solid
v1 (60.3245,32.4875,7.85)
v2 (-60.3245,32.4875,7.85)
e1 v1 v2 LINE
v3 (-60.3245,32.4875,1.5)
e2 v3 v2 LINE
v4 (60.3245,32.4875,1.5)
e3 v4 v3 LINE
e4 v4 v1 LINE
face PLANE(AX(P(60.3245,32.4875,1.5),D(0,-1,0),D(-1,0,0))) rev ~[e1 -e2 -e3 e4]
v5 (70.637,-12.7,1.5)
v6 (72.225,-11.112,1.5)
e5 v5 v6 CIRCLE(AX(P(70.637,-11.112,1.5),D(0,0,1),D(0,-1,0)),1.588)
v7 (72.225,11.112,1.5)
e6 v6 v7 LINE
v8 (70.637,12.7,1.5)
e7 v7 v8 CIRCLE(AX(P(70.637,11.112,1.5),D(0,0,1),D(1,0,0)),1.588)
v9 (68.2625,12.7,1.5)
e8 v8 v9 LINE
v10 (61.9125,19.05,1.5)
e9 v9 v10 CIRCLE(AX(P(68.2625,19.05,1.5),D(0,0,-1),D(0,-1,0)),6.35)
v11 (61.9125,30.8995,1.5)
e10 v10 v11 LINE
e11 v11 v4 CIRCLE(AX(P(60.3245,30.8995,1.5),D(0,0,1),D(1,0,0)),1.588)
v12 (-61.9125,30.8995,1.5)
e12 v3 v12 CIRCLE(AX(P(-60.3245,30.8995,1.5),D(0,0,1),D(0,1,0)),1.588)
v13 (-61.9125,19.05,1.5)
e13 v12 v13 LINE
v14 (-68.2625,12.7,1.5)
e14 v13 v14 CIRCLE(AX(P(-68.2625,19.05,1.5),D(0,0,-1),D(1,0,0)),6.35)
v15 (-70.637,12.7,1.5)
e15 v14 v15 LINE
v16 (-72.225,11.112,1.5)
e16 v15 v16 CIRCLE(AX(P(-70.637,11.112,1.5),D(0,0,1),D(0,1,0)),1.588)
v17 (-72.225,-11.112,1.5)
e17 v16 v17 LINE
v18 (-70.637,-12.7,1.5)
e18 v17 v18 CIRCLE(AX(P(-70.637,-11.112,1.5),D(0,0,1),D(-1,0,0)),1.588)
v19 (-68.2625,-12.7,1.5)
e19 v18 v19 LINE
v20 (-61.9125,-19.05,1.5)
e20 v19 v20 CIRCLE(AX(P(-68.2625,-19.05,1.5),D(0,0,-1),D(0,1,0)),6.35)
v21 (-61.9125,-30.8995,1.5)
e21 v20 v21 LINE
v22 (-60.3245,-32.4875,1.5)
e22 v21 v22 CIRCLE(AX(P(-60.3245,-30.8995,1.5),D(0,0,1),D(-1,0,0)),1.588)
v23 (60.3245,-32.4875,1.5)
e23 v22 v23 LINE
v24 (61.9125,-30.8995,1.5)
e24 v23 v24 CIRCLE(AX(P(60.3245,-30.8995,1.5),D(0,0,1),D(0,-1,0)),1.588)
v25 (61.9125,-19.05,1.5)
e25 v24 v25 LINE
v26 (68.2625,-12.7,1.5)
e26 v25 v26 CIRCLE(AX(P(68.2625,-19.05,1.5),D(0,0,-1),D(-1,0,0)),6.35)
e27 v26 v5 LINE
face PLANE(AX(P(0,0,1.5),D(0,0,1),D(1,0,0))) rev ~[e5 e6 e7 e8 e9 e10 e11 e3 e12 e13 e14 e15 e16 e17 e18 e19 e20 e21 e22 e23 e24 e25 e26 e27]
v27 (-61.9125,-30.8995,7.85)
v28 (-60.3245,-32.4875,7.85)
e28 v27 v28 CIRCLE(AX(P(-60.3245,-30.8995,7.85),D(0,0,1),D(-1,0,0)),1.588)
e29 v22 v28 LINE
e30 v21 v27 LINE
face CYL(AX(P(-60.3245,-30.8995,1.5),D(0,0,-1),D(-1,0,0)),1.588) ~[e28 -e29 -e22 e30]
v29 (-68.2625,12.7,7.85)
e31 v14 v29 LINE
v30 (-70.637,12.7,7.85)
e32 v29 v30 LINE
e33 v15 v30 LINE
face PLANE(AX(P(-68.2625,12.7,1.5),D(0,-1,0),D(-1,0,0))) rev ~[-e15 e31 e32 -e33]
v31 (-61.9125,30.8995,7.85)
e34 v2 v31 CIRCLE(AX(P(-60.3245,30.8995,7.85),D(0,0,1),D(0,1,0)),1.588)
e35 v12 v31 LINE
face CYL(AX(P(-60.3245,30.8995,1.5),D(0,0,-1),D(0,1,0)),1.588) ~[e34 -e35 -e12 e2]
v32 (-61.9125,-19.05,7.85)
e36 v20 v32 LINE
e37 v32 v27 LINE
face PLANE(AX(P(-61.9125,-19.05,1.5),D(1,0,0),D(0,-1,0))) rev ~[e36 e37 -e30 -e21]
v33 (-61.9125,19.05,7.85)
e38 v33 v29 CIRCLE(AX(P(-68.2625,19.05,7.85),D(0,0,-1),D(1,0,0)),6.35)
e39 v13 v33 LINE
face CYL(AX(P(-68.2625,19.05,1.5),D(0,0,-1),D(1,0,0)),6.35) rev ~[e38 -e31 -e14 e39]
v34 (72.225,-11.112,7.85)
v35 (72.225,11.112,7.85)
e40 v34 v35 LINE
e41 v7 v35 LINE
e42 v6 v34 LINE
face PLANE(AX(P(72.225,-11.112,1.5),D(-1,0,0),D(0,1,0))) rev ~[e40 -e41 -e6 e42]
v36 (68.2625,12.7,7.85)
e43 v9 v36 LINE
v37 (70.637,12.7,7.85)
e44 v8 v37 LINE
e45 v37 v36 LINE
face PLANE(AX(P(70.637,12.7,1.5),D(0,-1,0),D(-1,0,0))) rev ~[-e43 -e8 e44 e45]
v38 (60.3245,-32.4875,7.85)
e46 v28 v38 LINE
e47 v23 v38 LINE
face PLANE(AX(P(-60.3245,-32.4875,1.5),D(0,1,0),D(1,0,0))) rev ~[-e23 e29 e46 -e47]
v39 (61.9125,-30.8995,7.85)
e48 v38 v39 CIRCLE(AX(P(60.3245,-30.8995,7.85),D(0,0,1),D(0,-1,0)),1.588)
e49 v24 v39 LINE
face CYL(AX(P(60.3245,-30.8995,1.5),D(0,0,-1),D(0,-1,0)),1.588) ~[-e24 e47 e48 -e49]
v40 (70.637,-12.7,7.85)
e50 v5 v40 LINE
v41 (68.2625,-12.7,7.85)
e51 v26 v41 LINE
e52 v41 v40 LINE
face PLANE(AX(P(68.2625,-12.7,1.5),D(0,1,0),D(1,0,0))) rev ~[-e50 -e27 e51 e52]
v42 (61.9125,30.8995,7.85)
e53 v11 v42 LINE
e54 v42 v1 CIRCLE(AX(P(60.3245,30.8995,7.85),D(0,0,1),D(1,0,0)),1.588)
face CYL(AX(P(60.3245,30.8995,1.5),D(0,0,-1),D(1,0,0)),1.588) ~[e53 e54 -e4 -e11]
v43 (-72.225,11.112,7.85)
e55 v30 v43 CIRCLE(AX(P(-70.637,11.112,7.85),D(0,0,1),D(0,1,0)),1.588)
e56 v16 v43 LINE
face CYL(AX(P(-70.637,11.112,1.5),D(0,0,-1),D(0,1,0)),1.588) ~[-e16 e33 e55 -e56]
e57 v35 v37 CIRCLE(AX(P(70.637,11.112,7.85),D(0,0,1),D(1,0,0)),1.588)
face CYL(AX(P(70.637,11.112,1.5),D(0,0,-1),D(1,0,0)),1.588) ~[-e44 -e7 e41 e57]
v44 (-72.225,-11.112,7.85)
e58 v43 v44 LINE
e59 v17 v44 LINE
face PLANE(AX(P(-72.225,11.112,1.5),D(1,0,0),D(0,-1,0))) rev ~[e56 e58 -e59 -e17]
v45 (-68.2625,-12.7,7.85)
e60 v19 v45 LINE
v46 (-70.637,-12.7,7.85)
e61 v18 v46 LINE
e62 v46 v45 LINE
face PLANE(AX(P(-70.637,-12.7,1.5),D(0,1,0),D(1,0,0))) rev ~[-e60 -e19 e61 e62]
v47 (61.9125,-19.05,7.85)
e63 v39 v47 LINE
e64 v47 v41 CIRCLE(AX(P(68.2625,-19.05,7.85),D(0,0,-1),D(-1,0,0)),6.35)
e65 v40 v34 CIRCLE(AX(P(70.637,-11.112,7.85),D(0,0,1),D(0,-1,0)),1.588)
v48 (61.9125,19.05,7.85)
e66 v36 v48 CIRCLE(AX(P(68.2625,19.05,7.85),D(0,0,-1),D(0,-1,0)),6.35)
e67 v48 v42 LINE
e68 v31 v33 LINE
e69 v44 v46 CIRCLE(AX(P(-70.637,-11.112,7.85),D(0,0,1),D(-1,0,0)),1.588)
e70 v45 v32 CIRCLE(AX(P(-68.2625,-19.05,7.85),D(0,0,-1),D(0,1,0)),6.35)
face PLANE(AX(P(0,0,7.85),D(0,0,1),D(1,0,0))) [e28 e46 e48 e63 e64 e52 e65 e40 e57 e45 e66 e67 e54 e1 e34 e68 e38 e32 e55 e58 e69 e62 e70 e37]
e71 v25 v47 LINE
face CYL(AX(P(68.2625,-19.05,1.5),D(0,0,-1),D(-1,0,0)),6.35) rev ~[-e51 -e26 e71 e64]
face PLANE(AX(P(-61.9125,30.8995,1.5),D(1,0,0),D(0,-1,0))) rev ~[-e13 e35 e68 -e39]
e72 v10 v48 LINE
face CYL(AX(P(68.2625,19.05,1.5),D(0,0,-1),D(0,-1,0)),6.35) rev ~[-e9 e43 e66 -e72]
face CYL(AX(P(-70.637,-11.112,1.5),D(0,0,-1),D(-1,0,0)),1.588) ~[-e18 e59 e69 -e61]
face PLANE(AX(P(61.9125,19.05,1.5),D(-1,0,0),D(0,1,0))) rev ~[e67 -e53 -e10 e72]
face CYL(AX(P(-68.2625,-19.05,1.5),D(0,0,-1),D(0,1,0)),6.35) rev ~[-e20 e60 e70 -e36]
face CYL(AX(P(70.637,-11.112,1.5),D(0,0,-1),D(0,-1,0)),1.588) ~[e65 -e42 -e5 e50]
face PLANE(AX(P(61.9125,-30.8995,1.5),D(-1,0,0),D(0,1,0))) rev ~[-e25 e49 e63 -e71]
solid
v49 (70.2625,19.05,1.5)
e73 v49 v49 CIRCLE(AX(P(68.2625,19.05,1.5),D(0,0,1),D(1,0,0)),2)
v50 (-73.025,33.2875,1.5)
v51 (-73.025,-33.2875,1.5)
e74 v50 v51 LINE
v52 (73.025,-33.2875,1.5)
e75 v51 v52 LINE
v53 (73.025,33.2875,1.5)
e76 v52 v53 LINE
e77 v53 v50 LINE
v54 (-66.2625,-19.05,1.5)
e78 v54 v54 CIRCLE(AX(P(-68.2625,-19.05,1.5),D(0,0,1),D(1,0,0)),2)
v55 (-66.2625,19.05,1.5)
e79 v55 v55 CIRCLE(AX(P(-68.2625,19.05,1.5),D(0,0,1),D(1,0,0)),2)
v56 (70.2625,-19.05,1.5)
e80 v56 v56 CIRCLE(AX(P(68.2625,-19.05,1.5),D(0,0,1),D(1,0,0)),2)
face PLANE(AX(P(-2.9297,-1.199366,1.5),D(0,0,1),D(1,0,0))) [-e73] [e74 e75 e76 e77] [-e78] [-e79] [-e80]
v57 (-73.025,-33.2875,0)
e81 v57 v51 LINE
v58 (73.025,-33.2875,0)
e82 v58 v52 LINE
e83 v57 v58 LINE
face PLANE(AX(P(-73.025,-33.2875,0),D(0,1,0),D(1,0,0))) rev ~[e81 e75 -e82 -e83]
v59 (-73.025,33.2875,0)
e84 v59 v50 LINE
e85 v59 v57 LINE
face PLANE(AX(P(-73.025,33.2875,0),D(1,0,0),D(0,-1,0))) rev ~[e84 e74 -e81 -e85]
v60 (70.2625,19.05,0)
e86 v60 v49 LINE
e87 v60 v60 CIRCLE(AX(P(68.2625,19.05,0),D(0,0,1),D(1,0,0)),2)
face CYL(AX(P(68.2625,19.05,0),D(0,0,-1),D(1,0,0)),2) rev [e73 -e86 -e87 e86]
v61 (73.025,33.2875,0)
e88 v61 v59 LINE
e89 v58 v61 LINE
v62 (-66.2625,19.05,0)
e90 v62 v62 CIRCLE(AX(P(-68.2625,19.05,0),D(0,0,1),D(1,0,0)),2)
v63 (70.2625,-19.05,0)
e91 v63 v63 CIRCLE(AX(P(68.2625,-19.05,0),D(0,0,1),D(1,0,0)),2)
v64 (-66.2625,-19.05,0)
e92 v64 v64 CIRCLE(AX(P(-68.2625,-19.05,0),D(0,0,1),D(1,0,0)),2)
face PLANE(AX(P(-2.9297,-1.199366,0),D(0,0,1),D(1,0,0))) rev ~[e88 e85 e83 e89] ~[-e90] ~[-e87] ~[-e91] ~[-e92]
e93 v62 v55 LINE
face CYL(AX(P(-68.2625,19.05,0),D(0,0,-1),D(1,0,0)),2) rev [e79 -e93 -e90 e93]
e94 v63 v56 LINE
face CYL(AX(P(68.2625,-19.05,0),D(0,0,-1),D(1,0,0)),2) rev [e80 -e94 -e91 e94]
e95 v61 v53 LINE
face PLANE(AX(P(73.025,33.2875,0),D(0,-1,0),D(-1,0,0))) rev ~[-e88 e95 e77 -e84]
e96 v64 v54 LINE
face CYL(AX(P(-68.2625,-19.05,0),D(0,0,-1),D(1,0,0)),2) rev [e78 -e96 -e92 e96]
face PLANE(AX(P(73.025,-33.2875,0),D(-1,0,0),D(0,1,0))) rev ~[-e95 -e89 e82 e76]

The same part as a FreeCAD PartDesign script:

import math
import FreeCAD as App
import Part
import Sketcher
Q = App.Units.Quantity


def add_polygon(sketch, points):
    """Adds a closed chain of lines whose ends are joined by coincident constraints."""
    first, n = sketch.GeometryCount, len(points)
    for a, b in zip(points, points[1:] + points[:1]):
        sketch.addGeometry(Part.LineSegment(App.Vector(*a, 0), App.Vector(*b, 0)), False)
    for i in range(n):
        sketch.addConstraint(Sketcher.Constraint("Coincident", first + i, 2, first + (i + 1) % n, 1))

doc = App.newDocument("Part")
body = doc.addObject("PartDesign::Body", "Body")

# Sketch on XY plane
sketch1 = body.newObject("Sketcher::SketchObject", "Sketch")
sketch1.AttachmentSupport = (doc.getObject("XY_Plane"), [""])
sketch1.MapMode = "FlatFace"
add_polygon(sketch1, [(-73, -33.3), (73, -33.3), (73, 33.3), (-73, 33.3)])  # lines 0-3
sketch1.addGeometry(Part.Circle(App.Vector(-68.3, -19.1, 0), App.Vector(0, 0, 1), 2), False)  # 4
sketch1.addGeometry(Part.Circle(App.Vector(-68.3, 19.1, 0), App.Vector(0, 0, 1), 2), False)  # 5
sketch1.addGeometry(Part.Circle(App.Vector(68.3, 19.1, 0), App.Vector(0, 0, 1), 2), False)  # 6
sketch1.addGeometry(Part.Circle(App.Vector(68.3, -19.1, 0), App.Vector(0, 0, 1), 2), False)  # 7
sketch1.addConstraint(Sketcher.Constraint("Horizontal", 0))
sketch1.addConstraint(Sketcher.Constraint("Vertical", 1))
sketch1.addConstraint(Sketcher.Constraint("Horizontal", 2))
sketch1.addConstraint(Sketcher.Constraint("Vertical", 3))
sketch1.addConstraint(Sketcher.Constraint("Equal", 4, 5))
sketch1.addConstraint(Sketcher.Constraint("Equal", 5, 6))
sketch1.addConstraint(Sketcher.Constraint("Equal", 6, 7))
sketch1.addConstraint(Sketcher.Constraint("Symmetric", 4, 3, 6, 3, -1, 1))
sketch1.addConstraint(Sketcher.Constraint("Symmetric", 5, 3, 7, 3, -1, 1))
sketch1.addConstraint(Sketcher.Constraint("Symmetric", 0, 2, 2, 2, -1, 1))
sketch1.addConstraint(Sketcher.Constraint("Symmetric", 5, 3, 6, 3, -2))
sketch1.addConstraint(Sketcher.Constraint("DistanceX", 0, 1, 0, 2, Q("5.75 in")))
sketch1.addConstraint(Sketcher.Constraint("DistanceY", 4, 3, 5, 3, Q("1.5 in")))
sketch1.addConstraint(Sketcher.Constraint("Diameter", 4, 4.0))
sketch1.addConstraint(Sketcher.Constraint("DistanceX", 4, 3, -1, 1, Q("2.6875 in")))
sketch1.addConstraint(Sketcher.Constraint("DistanceY", 1, 1, 1, 2, 66.575))
pad1 = body.newObject("PartDesign::Pad", "Pad")
pad1.Profile = sketch1
pad1.Length = 1.5
body2 = doc.addObject("PartDesign::Body", "Body001")

# Sketch on XY plane
sketch2 = body2.newObject("Sketcher::SketchObject", "Sketch001")
sketch2.AttachmentSupport = (doc.getObject("XY_Plane001"), [""])
sketch2.MapMode = "FlatFace"
sketch2.AttachmentOffset = App.Placement(App.Vector(0, 0, 1.5), App.Rotation())
sketch2.addGeometry(Part.LineSegment(App.Vector(70.6, 12.7, 0), App.Vector(68.3, 12.7, 0)), False)
sketch2.addGeometry(Part.ArcOfCircle(Part.Circle(App.Vector(68.3, 19.1, 0), App.Vector(0, 0, 1), 6.3), math.radians(180), math.radians(270)), False)
sketch2.addGeometry(Part.LineSegment(App.Vector(61.9, 19.1, 0), App.Vector(61.9, 30.9, 0)), False)
sketch2.addGeometry(Part.ArcOfCircle(Part.Circle(App.Vector(60.3, 30.9, 0), App.Vector(0, 0, 1), 1.6), math.radians(0), math.radians(90)), False)
sketch2.addGeometry(Part.LineSegment(App.Vector(60.3, 32.5, 0), App.Vector(-60.3, 32.5, 0)), False)
sketch2.addGeometry(Part.ArcOfCircle(Part.Circle(App.Vector(-60.3, 30.9, 0), App.Vector(0, 0, 1), 1.6), math.radians(90), math.radians(180)), False)
sketch2.addGeometry(Part.LineSegment(App.Vector(-61.9, 30.9, 0), App.Vector(-61.9, 19.1, 0)), False)
sketch2.addGeometry(Part.ArcOfCircle(Part.Circle(App.Vector(-68.3, 19.1, 0), App.Vector(0, 0, 1), 6.3), math.radians(-90), math.radians(0)), False)
sketch2.addGeometry(Part.LineSegment(App.Vector(-68.3, 12.7, 0), App.Vector(-70.6, 12.7, 0)), False)
sketch2.addGeometry(Part.ArcOfCircle(Part.Circle(App.Vector(-70.6, 11.1, 0), App.Vector(0, 0, 1), 1.6), math.radians(90), math.radians(180)), False)
sketch2.addGeometry(Part.LineSegment(App.Vector(-72.2, 11.1, 0), App.Vector(-72.2, -11.1, 0)), False)
sketch2.addGeometry(Part.ArcOfCircle(Part.Circle(App.Vector(-70.6, -11.1, 0), App.Vector(0, 0, 1), 1.6), math.radians(180), math.radians(270)), False)
sketch2.addGeometry(Part.LineSegment(App.Vector(-70.6, -12.7, 0), App.Vector(-68.3, -12.7, 0)), False)
sketch2.addGeometry(Part.ArcOfCircle(Part.Circle(App.Vector(-68.3, -19.1, 0), App.Vector(0, 0, 1), 6.3), math.radians(0), math.radians(90)), False)
sketch2.addGeometry(Part.LineSegment(App.Vector(-61.9, -19.1, 0), App.Vector(-61.9, -30.9, 0)), False)
sketch2.addGeometry(Part.ArcOfCircle(Part.Circle(App.Vector(-60.3, -30.9, 0), App.Vector(0, 0, 1), 1.6), math.radians(180), math.radians(270)), False)
sketch2.addGeometry(Part.LineSegment(App.Vector(-60.3, -32.5, 0), App.Vector(60.3, -32.5, 0)), False)
sketch2.addGeometry(Part.ArcOfCircle(Part.Circle(App.Vector(60.3, -30.9, 0), App.Vector(0, 0, 1), 1.6), math.radians(-90), math.radians(0)), False)
sketch2.addGeometry(Part.LineSegment(App.Vector(61.9, -30.9, 0), App.Vector(61.9, -19.1, 0)), False)
sketch2.addGeometry(Part.ArcOfCircle(Part.Circle(App.Vector(68.3, -19.1, 0), App.Vector(0, 0, 1), 6.3), math.radians(90), math.radians(180)), False)
sketch2.addGeometry(Part.LineSegment(App.Vector(68.3, -12.7, 0), App.Vector(70.6, -12.7, 0)), False)
sketch2.addGeometry(Part.ArcOfCircle(Part.Circle(App.Vector(70.6, -11.1, 0), App.Vector(0, 0, 1), 1.6), math.radians(-90), math.radians(0)), False)
sketch2.addGeometry(Part.LineSegment(App.Vector(72.2, -11.1, 0), App.Vector(72.2, 11.1, 0)), False)
sketch2.addGeometry(Part.ArcOfCircle(Part.Circle(App.Vector(70.6, 11.1, 0), App.Vector(0, 0, 1), 1.6), math.radians(0), math.radians(90)), False)
sketch2.addConstraint(Sketcher.Constraint("Tangent", 0, 2, 1, 2))
sketch2.addConstraint(Sketcher.Constraint("Tangent", 1, 1, 2, 1))
sketch2.addConstraint(Sketcher.Constraint("Tangent", 2, 2, 3, 1))
sketch2.addConstraint(Sketcher.Constraint("Tangent", 3, 2, 4, 1))
sketch2.addConstraint(Sketcher.Constraint("Tangent", 4, 2, 5, 1))
sketch2.addConstraint(Sketcher.Constraint("Tangent", 5, 2, 6, 1))
sketch2.addConstraint(Sketcher.Constraint("Tangent", 6, 2, 7, 2))
sketch2.addConstraint(Sketcher.Constraint("Tangent", 7, 1, 8, 1))
sketch2.addConstraint(Sketcher.Constraint("Tangent", 8, 2, 9, 1))
sketch2.addConstraint(Sketcher.Constraint("Tangent", 9, 2, 10, 1))
sketch2.addConstraint(Sketcher.Constraint("Tangent", 10, 2, 11, 1))
sketch2.addConstraint(Sketcher.Constraint("Tangent", 11, 2, 12, 1))
sketch2.addConstraint(Sketcher.Constraint("Tangent", 12, 2, 13, 2))
sketch2.addConstraint(Sketcher.Constraint("Tangent", 13, 1, 14, 1))
sketch2.addConstraint(Sketcher.Constraint("Tangent", 14, 2, 15, 1))
sketch2.addConstraint(Sketcher.Constraint("Tangent", 15, 2, 16, 1))
sketch2.addConstraint(Sketcher.Constraint("Tangent", 16, 2, 17, 1))
sketch2.addConstraint(Sketcher.Constraint("Tangent", 17, 2, 18, 1))
sketch2.addConstraint(Sketcher.Constraint("Tangent", 18, 2, 19, 2))
sketch2.addConstraint(Sketcher.Constraint("Tangent", 19, 1, 20, 1))
sketch2.addConstraint(Sketcher.Constraint("Tangent", 20, 2, 21, 1))
sketch2.addConstraint(Sketcher.Constraint("Tangent", 21, 2, 22, 1))
sketch2.addConstraint(Sketcher.Constraint("Tangent", 22, 2, 23, 1))
sketch2.addConstraint(Sketcher.Constraint("Tangent", 23, 2, 0, 1))
sketch2.addConstraint(Sketcher.Constraint("Horizontal", 0))
sketch2.addConstraint(Sketcher.Constraint("Vertical", 2))
sketch2.addConstraint(Sketcher.Constraint("Horizontal", 4))
sketch2.addConstraint(Sketcher.Constraint("Vertical", 6))
sketch2.addConstraint(Sketcher.Constraint("Horizontal", 8))
sketch2.addConstraint(Sketcher.Constraint("Vertical", 10))
sketch2.addConstraint(Sketcher.Constraint("Horizontal", 12))
sketch2.addConstraint(Sketcher.Constraint("Vertical", 14))
sketch2.addConstraint(Sketcher.Constraint("Horizontal", 16))
sketch2.addConstraint(Sketcher.Constraint("Vertical", 18))
sketch2.addConstraint(Sketcher.Constraint("Horizontal", 20))
sketch2.addConstraint(Sketcher.Constraint("Vertical", 22))
sketch2.addConstraint(Sketcher.Constraint("Equal", 3, 5))
sketch2.addConstraint(Sketcher.Constraint("Equal", 1, 7))
sketch2.addConstraint(Sketcher.Constraint("Equal", 5, 9))
sketch2.addConstraint(Sketcher.Constraint("Equal", 9, 11))
sketch2.addConstraint(Sketcher.Constraint("Equal", 7, 13))
sketch2.addConstraint(Sketcher.Constraint("Equal", 11, 15))
sketch2.addConstraint(Sketcher.Constraint("Equal", 15, 17))
sketch2.addConstraint(Sketcher.Constraint("Equal", 13, 19))
sketch2.addConstraint(Sketcher.Constraint("Equal", 17, 21))
sketch2.addConstraint(Sketcher.Constraint("Equal", 21, 23))
sketch2.addConstraint(Sketcher.Constraint("Symmetric", 1, 3, 13, 3, -1, 1))
sketch2.addConstraint(Sketcher.Constraint("Symmetric", 5, 3, 17, 3, -1, 1))
sketch2.addConstraint(Sketcher.Constraint("Symmetric", 9, 3, 21, 3, -1, 1))
sketch2.addConstraint(Sketcher.Constraint("Symmetric", 1, 3, 7, 3, -2))
sketch2.addConstraint(Sketcher.Constraint("Radius", 1, Q("0.25 in")))
sketch2.addConstraint(Sketcher.Constraint("DistanceY", -1, 1, 0, 2, Q("0.5 in")))
sketch2.addConstraint(Sketcher.Constraint("Radius", 3, 1.588))
sketch2.addConstraint(Sketcher.Constraint("DistanceX", -1, 1, 1, 3, Q("2.6875 in")))
sketch2.addConstraint(Sketcher.Constraint("DistanceX", 0, 2, 0, 1, 2.3745))
sketch2.addConstraint(Sketcher.Constraint("DistanceY", 2, 1, 2, 2, 11.8495))
pad2 = body2.newObject("PartDesign::Pad", "Pad001")
pad2.Profile = sketch2
pad2.Length = Q("0.25 in")

doc.recompute()
